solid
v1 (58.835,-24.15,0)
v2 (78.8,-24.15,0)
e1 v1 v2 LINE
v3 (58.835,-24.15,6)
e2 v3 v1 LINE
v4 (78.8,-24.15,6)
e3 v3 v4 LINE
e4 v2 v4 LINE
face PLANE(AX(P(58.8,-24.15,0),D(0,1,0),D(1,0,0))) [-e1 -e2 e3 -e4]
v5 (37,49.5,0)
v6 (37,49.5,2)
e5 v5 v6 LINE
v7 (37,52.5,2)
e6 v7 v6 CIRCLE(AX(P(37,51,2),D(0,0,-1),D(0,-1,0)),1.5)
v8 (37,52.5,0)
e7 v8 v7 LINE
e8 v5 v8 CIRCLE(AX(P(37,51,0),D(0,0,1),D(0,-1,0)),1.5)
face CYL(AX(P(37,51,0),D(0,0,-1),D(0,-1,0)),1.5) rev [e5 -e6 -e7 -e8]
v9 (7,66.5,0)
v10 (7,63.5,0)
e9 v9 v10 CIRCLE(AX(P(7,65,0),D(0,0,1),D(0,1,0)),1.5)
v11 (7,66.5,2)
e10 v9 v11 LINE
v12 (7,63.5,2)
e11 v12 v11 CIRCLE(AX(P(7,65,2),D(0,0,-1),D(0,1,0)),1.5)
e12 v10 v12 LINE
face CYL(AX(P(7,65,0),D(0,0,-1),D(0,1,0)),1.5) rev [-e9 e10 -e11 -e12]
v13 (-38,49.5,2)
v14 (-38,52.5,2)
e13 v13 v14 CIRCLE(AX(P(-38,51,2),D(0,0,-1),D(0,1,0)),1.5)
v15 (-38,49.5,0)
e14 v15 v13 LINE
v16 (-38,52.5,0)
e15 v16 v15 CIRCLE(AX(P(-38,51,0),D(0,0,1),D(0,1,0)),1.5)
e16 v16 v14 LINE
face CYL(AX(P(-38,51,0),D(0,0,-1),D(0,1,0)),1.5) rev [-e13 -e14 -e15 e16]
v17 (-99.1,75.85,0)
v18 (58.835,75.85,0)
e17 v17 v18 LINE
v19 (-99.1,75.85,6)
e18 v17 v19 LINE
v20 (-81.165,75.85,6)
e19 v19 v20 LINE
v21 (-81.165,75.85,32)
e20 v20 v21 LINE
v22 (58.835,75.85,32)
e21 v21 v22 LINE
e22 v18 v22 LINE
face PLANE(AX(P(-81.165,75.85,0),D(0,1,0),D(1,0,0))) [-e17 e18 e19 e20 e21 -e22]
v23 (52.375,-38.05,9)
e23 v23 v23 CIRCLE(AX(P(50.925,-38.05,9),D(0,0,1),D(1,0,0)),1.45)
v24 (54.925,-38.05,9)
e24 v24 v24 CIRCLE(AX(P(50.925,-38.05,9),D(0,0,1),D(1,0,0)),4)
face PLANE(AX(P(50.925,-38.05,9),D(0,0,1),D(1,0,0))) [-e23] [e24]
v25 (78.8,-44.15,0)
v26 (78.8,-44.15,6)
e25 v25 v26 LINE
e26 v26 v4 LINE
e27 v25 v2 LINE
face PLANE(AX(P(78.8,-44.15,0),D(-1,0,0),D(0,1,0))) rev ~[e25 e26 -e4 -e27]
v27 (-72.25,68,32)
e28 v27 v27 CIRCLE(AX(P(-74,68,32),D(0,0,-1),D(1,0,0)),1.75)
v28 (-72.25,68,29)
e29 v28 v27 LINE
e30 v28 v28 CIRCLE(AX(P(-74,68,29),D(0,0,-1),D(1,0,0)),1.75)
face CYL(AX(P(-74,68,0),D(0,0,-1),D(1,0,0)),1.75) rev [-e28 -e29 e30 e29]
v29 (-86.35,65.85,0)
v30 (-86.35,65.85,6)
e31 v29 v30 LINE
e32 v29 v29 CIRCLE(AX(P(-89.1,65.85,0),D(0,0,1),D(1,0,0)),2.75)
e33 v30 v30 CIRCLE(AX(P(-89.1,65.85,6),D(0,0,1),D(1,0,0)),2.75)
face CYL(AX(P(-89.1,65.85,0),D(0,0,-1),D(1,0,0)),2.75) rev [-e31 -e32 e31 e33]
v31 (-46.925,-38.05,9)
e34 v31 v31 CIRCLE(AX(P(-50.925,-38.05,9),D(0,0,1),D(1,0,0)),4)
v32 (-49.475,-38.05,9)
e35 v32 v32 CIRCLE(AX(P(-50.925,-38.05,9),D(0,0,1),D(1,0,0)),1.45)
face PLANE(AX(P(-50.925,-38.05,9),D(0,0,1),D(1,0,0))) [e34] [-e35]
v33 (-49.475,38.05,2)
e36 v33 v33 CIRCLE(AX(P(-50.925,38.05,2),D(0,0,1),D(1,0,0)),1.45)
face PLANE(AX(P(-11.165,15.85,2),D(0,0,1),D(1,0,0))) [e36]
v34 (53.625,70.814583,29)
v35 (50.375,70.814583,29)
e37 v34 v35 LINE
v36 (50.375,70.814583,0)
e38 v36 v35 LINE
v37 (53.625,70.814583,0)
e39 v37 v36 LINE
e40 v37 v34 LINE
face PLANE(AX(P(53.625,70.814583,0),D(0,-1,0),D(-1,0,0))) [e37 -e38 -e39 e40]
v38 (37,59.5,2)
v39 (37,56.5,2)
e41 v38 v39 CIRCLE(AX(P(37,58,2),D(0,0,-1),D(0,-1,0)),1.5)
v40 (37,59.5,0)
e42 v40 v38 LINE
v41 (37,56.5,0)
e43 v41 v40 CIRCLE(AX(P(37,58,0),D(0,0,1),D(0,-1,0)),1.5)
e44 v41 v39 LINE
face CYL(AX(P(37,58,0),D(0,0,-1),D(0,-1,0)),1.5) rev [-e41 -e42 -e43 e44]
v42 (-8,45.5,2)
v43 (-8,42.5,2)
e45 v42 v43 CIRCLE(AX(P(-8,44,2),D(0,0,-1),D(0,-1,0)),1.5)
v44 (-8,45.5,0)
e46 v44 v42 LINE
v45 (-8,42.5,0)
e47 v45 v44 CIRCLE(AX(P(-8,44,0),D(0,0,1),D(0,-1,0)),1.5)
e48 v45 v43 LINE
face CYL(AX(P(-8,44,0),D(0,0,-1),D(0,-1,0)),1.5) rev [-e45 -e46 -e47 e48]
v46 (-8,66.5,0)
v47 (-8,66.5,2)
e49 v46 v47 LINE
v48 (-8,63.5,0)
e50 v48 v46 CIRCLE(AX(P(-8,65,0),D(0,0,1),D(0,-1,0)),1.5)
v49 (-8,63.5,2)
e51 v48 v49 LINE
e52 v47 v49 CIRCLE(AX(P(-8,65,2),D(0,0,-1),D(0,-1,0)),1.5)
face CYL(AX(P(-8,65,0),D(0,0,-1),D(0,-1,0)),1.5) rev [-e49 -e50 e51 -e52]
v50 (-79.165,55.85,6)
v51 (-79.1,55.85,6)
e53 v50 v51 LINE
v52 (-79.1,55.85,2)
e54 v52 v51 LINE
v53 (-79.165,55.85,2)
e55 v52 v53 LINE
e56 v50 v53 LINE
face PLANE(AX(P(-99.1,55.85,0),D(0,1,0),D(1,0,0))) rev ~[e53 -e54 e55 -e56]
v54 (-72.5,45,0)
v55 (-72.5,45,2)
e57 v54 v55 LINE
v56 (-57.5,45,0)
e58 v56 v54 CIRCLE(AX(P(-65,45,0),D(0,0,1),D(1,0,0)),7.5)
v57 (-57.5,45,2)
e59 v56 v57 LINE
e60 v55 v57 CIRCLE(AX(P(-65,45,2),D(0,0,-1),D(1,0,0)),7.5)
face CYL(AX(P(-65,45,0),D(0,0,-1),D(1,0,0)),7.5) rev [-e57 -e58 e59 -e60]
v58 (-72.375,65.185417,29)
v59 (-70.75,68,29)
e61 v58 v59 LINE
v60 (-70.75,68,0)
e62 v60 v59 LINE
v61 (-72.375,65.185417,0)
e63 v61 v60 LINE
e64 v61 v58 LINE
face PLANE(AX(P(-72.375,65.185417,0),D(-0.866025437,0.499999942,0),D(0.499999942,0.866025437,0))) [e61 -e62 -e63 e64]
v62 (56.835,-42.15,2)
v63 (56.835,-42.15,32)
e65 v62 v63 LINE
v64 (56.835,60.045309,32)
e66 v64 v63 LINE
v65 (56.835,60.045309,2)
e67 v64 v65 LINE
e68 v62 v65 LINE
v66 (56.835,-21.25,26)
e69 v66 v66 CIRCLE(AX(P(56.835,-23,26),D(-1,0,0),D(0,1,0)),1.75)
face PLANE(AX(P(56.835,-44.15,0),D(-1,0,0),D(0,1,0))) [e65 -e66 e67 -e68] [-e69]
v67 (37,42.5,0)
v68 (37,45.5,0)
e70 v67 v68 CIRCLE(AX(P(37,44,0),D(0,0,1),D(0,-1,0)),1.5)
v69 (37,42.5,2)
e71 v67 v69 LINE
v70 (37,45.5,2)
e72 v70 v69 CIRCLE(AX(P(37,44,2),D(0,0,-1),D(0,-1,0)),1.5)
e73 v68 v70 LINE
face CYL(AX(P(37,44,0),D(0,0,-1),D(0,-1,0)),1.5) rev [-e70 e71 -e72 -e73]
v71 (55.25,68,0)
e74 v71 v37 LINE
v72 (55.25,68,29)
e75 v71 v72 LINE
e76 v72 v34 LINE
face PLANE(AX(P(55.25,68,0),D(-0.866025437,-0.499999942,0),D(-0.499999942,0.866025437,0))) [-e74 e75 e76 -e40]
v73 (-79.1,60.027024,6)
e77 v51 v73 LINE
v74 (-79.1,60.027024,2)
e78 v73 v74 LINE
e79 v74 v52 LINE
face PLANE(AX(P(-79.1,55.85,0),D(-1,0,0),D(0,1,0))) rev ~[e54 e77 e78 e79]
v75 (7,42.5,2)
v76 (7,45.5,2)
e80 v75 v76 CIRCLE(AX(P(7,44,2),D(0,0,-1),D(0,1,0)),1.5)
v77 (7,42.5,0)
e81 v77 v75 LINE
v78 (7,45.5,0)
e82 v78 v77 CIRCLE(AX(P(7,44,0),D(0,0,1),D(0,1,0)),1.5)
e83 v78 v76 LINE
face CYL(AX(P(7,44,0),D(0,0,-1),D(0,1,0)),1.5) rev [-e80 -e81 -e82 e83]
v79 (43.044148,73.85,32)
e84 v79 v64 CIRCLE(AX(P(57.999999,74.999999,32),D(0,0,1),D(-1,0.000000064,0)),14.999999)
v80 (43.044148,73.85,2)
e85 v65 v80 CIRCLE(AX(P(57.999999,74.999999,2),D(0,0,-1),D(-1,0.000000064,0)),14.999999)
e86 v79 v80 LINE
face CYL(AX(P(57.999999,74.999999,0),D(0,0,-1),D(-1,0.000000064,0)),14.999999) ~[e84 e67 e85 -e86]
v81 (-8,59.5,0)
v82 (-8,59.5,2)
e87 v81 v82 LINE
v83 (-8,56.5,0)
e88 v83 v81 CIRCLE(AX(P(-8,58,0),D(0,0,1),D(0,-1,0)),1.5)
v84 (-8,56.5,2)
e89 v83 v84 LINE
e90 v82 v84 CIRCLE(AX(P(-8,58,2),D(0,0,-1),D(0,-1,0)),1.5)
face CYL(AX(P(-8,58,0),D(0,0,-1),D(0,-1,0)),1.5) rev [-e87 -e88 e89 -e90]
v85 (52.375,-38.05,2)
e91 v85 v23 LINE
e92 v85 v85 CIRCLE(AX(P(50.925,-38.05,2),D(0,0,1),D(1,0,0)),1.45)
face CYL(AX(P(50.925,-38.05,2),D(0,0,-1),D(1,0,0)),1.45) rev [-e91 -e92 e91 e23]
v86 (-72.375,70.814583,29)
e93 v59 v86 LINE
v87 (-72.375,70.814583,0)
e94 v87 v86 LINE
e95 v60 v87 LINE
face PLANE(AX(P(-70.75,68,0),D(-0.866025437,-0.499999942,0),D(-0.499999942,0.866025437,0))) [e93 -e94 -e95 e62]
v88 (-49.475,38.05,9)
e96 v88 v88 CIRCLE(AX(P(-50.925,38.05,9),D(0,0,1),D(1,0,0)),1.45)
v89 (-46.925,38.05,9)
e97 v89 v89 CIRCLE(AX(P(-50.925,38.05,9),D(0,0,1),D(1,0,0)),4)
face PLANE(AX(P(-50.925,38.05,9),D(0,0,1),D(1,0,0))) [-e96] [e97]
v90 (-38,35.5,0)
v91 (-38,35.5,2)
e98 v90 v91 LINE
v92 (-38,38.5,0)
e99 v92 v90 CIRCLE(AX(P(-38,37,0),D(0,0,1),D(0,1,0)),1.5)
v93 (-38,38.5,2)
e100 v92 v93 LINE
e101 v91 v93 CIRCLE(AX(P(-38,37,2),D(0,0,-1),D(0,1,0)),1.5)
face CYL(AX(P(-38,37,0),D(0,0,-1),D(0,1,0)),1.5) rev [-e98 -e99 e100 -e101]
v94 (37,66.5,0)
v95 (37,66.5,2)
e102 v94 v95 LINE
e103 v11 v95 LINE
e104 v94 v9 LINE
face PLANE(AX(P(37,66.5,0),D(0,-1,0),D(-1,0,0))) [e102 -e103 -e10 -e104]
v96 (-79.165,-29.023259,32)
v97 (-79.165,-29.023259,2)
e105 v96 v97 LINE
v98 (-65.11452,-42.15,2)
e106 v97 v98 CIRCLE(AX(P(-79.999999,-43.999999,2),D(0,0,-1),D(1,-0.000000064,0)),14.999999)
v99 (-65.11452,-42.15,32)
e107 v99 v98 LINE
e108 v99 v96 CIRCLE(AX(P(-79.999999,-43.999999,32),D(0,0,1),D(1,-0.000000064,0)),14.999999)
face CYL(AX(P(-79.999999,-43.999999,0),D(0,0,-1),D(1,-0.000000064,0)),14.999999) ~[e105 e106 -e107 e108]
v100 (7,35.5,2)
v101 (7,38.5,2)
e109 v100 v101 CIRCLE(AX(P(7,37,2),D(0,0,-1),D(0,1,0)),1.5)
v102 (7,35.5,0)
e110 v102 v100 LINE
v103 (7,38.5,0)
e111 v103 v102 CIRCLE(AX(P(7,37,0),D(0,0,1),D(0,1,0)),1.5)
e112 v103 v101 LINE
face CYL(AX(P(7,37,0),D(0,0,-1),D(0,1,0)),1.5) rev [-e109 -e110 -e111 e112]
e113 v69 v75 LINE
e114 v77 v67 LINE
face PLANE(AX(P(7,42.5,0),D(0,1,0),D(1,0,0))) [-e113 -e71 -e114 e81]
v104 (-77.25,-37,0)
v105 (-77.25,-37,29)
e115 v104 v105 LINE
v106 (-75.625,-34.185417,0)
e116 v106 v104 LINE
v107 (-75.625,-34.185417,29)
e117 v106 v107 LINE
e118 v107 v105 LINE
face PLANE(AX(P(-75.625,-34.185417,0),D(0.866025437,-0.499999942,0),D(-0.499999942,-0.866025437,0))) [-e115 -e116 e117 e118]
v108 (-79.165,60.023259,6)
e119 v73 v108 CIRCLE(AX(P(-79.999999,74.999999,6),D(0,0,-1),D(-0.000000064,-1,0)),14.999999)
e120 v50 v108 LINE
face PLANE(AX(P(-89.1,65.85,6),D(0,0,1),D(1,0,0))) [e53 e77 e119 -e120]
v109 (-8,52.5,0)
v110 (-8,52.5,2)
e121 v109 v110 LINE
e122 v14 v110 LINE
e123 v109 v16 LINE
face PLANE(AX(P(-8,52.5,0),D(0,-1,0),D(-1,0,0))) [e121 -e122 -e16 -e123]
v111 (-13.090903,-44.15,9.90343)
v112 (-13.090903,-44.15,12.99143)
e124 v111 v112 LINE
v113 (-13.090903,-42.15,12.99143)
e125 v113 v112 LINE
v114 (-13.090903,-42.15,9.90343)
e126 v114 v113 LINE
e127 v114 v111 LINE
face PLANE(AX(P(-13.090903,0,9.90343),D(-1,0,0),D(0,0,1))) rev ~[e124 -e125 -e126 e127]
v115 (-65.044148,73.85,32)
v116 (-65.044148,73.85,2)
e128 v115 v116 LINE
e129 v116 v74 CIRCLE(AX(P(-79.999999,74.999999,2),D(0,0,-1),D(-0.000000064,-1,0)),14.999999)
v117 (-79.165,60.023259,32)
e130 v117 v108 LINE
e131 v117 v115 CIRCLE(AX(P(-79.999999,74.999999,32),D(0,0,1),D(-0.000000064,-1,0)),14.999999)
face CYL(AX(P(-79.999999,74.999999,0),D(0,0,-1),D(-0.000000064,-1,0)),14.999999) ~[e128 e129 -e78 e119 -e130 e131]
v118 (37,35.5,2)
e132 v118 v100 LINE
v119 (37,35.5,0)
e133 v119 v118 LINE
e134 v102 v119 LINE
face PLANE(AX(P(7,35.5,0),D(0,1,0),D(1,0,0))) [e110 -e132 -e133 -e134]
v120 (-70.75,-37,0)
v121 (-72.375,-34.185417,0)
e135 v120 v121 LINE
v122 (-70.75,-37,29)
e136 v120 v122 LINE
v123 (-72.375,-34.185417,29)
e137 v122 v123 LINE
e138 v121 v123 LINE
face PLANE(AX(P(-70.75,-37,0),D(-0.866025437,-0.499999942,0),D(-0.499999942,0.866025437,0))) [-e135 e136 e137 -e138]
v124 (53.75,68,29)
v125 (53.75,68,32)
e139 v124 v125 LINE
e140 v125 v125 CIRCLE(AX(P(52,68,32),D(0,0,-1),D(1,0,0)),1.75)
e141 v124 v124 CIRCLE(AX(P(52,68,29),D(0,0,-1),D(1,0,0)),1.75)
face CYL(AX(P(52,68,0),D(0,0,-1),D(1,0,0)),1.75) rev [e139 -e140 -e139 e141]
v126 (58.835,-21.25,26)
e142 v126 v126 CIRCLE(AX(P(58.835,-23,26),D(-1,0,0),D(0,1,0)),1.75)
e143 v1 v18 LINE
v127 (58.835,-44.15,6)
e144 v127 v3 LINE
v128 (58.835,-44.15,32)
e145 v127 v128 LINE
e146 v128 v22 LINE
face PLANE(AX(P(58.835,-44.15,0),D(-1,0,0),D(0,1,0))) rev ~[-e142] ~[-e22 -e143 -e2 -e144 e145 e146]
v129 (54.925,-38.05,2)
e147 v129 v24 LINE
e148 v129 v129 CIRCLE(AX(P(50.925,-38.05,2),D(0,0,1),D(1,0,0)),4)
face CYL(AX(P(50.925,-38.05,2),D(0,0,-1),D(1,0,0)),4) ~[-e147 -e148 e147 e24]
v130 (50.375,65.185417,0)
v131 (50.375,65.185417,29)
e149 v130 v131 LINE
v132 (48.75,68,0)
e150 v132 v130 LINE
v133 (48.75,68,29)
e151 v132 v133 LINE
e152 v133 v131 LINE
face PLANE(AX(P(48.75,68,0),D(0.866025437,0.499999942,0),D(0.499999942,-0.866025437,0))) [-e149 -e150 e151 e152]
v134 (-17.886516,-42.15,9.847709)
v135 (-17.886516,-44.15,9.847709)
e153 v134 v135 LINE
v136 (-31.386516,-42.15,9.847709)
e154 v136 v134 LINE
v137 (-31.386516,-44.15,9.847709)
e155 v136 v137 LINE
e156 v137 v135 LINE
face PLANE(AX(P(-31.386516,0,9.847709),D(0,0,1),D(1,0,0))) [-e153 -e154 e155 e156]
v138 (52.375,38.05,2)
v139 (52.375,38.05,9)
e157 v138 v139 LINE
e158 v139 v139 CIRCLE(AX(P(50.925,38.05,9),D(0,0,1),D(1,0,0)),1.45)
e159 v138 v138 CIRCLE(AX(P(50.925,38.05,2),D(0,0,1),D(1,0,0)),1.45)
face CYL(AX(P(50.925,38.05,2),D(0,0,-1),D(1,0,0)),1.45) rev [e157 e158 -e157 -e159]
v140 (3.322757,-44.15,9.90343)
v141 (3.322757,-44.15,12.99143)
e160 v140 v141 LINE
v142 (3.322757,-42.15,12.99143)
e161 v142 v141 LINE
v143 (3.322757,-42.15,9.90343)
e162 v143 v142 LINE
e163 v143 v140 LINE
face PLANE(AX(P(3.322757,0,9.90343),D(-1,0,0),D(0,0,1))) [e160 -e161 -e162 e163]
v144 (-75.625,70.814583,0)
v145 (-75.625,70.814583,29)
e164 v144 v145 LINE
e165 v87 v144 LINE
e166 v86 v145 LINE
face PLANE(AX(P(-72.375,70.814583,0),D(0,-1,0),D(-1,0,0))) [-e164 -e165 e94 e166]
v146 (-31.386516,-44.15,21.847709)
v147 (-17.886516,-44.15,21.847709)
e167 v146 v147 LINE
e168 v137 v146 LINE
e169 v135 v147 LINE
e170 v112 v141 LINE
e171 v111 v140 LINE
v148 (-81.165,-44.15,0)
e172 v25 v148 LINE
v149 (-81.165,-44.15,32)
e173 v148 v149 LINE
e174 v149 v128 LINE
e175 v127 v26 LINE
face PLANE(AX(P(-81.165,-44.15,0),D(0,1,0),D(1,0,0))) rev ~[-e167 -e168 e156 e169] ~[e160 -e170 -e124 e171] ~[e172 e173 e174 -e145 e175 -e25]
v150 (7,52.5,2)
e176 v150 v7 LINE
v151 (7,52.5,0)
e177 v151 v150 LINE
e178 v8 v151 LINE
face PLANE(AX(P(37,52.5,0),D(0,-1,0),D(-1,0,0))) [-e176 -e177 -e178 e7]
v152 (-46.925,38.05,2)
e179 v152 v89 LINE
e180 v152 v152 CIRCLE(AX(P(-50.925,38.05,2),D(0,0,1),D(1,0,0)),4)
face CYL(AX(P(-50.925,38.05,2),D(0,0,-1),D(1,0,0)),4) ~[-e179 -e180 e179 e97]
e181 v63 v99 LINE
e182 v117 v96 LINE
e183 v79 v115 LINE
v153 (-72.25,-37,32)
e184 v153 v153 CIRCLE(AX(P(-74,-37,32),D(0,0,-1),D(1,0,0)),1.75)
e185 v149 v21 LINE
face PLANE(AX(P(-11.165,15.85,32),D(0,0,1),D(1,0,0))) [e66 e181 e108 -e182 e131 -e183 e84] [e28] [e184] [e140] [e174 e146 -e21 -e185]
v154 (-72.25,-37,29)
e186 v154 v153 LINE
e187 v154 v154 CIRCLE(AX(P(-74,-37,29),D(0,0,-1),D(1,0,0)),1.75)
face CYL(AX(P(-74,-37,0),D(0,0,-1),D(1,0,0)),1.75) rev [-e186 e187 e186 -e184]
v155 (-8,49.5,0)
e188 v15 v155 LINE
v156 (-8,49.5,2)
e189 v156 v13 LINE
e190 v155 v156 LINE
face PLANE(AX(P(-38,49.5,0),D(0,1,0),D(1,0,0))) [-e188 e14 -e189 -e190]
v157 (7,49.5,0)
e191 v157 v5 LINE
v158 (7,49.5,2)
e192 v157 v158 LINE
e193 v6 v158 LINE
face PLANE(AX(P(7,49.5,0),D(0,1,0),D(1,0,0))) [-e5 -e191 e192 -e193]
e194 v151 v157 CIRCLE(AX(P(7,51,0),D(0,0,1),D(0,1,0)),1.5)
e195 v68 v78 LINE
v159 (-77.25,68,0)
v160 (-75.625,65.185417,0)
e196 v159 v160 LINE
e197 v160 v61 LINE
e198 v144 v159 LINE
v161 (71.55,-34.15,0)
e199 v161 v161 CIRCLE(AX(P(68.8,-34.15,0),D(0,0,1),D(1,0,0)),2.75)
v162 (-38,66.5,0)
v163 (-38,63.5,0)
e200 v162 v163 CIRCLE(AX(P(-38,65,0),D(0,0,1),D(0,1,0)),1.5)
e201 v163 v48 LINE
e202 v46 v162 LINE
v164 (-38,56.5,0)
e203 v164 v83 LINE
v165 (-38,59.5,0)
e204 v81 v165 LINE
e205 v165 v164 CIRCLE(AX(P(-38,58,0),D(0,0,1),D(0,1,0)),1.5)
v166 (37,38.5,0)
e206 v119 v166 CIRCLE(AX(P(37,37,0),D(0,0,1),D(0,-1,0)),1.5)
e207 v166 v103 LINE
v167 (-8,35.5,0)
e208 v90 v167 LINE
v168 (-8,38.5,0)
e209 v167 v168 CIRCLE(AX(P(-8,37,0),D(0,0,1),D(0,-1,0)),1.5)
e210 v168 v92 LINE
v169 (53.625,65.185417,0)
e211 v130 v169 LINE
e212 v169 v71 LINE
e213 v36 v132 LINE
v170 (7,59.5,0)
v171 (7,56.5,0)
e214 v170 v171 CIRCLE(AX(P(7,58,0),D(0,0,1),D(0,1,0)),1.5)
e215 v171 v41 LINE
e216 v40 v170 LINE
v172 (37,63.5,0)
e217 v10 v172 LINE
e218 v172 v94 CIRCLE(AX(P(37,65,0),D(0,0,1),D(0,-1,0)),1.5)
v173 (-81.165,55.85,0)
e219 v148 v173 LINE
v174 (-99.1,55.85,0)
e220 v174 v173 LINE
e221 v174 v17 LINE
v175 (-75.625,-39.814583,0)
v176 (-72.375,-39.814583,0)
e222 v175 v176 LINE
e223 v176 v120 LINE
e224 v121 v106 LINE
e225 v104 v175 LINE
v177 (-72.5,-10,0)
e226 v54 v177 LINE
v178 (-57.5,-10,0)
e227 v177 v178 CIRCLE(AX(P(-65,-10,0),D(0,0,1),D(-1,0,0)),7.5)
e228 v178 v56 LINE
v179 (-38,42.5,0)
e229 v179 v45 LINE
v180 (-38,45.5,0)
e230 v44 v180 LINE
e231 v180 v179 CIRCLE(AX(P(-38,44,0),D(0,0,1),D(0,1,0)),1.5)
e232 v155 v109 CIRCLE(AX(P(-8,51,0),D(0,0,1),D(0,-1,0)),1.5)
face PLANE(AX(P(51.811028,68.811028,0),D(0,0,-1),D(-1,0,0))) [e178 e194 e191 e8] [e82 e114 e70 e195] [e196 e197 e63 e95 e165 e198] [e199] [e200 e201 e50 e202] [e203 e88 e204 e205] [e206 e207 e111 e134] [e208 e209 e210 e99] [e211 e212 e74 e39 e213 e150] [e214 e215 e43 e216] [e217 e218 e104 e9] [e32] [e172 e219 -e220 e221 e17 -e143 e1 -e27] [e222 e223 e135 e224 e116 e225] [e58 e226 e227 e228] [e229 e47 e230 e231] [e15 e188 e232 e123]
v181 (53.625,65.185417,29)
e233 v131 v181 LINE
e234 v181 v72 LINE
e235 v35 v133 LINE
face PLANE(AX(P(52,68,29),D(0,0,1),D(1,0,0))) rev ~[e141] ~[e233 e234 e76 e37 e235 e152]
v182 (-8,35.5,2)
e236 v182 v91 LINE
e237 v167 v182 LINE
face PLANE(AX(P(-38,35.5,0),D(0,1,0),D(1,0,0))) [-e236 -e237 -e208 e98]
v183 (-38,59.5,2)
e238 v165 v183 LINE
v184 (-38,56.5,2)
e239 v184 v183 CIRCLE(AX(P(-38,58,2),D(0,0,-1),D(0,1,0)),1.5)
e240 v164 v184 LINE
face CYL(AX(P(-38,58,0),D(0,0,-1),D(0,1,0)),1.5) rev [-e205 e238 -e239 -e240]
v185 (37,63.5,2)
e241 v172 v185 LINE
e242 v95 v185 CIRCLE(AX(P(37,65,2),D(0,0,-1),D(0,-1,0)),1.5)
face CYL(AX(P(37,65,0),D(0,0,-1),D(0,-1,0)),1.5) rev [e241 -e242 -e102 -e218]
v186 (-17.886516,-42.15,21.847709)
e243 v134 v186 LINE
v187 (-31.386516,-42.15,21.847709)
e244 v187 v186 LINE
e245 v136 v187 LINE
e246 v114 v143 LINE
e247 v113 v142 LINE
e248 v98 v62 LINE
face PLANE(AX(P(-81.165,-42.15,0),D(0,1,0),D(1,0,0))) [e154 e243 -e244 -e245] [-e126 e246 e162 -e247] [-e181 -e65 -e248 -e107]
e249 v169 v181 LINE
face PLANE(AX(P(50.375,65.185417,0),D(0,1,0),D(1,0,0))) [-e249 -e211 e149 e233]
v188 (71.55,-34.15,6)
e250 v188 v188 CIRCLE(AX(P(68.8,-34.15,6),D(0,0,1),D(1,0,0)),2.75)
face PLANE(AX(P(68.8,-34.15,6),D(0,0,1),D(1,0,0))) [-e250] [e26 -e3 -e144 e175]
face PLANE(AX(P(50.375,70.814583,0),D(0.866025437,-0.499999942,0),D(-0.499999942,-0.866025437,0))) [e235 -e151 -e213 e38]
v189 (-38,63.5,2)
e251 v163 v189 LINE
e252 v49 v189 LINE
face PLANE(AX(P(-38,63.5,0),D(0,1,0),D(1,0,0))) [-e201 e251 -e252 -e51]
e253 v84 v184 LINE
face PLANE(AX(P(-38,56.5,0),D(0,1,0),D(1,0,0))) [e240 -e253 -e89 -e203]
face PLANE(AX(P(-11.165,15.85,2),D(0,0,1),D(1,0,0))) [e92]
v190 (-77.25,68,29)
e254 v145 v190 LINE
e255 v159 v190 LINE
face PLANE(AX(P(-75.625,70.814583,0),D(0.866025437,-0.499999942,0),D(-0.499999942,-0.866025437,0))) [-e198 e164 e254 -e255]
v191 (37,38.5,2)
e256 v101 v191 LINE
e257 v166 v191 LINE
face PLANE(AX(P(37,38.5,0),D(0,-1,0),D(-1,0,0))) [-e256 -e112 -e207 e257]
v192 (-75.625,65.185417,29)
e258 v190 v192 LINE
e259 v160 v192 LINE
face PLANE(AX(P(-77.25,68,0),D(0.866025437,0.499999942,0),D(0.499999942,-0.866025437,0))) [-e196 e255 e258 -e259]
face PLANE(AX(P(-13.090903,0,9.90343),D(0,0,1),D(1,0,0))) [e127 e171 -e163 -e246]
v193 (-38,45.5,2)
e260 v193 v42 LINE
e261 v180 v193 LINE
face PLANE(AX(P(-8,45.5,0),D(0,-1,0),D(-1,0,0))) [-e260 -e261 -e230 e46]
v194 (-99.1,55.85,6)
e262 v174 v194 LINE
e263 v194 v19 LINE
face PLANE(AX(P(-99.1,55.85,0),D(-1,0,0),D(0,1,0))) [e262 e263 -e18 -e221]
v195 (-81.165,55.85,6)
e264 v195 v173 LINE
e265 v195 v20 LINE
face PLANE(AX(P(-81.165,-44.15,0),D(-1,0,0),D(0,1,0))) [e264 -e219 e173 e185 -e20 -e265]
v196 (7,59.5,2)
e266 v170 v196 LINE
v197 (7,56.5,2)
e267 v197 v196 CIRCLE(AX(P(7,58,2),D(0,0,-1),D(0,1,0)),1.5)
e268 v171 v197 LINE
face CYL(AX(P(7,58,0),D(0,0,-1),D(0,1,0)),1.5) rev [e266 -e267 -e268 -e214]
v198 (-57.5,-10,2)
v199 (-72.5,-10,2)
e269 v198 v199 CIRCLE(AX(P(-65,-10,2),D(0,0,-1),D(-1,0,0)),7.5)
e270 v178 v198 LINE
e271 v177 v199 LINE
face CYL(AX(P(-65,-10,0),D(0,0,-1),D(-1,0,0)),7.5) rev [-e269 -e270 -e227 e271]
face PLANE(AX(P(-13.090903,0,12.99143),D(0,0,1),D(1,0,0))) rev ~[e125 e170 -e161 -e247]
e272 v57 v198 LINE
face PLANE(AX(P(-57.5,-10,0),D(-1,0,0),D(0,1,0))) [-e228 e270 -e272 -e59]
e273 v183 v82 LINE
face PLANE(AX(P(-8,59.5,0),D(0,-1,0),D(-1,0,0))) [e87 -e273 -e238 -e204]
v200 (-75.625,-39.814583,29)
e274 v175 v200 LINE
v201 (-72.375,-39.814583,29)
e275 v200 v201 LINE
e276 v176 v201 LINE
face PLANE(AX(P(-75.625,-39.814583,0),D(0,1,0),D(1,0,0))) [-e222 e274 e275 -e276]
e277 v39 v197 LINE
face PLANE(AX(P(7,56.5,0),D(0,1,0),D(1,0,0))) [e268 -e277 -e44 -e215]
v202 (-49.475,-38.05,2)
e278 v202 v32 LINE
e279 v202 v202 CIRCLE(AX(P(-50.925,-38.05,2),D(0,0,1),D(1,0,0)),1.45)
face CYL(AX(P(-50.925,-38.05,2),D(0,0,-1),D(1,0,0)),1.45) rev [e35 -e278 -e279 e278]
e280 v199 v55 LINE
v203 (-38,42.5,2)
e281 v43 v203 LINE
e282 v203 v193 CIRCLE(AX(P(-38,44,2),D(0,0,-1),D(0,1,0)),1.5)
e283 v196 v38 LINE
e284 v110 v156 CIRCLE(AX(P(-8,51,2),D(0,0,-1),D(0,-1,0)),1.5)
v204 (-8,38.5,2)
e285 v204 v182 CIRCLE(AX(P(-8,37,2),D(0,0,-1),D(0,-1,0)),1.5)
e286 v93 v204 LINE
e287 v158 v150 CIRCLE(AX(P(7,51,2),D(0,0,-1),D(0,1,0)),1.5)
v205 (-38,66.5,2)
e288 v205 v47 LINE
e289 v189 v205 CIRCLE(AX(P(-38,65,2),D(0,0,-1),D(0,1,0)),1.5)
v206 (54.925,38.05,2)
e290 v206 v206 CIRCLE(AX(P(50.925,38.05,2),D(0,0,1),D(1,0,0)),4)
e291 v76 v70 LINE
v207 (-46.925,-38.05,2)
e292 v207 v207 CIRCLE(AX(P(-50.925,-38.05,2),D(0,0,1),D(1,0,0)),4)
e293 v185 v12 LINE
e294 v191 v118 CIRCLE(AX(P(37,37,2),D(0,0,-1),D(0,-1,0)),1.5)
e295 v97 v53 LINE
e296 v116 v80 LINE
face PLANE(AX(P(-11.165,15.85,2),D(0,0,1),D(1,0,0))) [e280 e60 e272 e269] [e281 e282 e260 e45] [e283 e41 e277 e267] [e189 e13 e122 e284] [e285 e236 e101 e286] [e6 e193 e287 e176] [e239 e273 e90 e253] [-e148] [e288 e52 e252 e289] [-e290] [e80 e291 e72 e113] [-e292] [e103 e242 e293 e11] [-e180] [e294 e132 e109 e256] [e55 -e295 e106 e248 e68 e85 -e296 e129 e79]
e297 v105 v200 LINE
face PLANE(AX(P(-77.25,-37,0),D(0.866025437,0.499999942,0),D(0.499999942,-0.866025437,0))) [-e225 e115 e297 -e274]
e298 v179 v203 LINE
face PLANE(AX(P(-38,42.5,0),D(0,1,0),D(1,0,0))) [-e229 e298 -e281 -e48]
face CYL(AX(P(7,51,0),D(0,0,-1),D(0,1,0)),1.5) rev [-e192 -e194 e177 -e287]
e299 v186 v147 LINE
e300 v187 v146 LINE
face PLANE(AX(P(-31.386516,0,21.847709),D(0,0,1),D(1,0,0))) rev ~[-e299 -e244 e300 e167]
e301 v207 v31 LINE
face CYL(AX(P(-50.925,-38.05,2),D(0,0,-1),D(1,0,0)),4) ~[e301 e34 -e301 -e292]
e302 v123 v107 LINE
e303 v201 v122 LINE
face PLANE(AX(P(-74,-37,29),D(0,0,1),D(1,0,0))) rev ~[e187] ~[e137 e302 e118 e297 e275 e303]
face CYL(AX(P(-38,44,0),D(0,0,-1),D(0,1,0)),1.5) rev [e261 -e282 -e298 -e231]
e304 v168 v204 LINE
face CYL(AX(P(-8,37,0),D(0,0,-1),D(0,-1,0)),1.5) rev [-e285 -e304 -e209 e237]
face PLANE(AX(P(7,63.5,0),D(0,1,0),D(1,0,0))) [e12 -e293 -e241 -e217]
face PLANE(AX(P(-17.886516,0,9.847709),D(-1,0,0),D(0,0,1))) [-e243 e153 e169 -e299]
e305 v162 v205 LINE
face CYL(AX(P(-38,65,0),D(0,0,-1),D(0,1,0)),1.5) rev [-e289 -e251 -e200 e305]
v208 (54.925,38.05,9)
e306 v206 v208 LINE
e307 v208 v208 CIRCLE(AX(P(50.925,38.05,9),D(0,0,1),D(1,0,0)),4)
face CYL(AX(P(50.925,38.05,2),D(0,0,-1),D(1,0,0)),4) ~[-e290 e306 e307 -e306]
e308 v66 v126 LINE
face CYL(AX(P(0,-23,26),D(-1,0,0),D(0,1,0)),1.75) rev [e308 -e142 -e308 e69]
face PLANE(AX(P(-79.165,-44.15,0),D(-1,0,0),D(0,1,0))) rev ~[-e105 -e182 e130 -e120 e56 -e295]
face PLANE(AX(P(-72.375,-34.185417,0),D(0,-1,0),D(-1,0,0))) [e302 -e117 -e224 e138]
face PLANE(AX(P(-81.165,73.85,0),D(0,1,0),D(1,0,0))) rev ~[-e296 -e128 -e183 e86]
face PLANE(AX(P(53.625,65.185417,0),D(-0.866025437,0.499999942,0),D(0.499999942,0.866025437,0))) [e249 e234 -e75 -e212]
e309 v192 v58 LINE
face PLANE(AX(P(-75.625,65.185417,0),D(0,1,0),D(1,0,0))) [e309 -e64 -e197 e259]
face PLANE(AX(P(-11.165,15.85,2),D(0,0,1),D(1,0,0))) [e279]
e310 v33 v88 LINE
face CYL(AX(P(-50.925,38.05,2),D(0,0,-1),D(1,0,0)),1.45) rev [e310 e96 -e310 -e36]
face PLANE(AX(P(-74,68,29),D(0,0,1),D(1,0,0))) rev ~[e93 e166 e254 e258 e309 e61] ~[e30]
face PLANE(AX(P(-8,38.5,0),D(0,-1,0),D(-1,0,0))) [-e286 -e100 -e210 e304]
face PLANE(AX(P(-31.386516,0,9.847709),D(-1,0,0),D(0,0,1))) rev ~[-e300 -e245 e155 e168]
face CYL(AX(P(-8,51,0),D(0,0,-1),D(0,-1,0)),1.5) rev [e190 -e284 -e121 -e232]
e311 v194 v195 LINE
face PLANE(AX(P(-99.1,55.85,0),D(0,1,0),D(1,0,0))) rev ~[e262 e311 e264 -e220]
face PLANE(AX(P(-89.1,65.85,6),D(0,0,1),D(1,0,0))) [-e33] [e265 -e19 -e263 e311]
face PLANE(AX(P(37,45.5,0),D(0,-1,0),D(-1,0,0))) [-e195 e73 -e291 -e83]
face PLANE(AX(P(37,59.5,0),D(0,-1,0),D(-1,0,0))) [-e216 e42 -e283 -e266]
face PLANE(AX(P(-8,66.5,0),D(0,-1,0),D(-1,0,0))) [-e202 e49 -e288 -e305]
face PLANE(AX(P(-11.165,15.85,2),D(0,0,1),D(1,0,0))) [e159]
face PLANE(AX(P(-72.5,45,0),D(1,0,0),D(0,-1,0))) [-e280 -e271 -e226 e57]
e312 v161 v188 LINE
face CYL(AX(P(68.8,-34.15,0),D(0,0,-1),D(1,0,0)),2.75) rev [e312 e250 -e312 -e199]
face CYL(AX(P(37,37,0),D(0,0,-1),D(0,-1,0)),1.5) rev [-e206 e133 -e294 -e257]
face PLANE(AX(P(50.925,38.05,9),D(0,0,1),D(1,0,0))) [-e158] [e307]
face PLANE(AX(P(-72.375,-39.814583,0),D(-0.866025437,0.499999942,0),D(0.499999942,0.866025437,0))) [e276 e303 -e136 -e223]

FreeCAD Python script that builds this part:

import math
import FreeCAD as App
import Part
import Sketcher
from FreeCAD import Vector
Q = App.Units.Quantity


def faces_at(feature, points):
    """Names of the faces that lie closest to the given points."""
    faces = feature.Shape.Faces
    near = lambda p: min(range(len(faces)), key=lambda i: faces[i].distToShape(Part.Vertex(*p))[0])
    return sorted({f"Face{near(p) + 1}" for p in points})


def add_polygon(sketch, points):
    """Adds a closed chain of lines whose ends are joined by coincident constraints."""
    first, n = sketch.GeometryCount, len(points)
    for a, b in zip(points, points[1:] + points[:1]):
        sketch.addGeometry(Part.LineSegment(App.Vector(*a, 0), App.Vector(*b, 0)), False)
    for i in range(n):
        sketch.addConstraint(Sketcher.Constraint("Coincident", first + i, 2, first + (i + 1) % n, 1))

doc = App.newDocument("Part")
params = doc.addObject("Spreadsheet::Sheet", "Params")
for row, (alias, value) in enumerate([
    ("sketch1_width", "140 mm"),
    ("sketch1_height", "120 mm"),
    ("pad1_length", "32 mm"),
    ("thickness_wall", "2 mm"),
    ("sketch2_diameter", "8 mm"),
    ("sketch2_diameter2", "2.9 mm"),
    ("pad2_length", "7 mm"),
    ("sketch3_height", "12 mm"),
    ("sketch3_width", "13.5 mm"),
    ("sketch4_radius", "14.999999 mm"),
    ("pad3_length", "32 mm"),
    ("sketch5_diameter", "3.5 mm"),
    ("sketch6_diameter", "3.5 mm"),
    ("sketch7_diameter", "5.5 mm"),
    ("sketch7_width", "20 mm"),
    ("pad4_length", "6 mm"),
    ("sketch8_width", "3.25 mm"),
    ("pocket4_length", "29 mm"),
    ("sketch9_radius", "7.5 mm"),
    ("sketch9_radius2", "1.5 mm"),
    ("sketch9_width", "30 mm"),
    ("sketch9_height", "55 mm"),
], start=1):
    params.set(f"A{row}", alias)
    params.set(f"B{row}", "=" + value)
    params.setAlias(f"B{row}", alias)

body = doc.addObject("PartDesign::Body", "Body")

sketch1 = body.newObject("Sketcher::SketchObject", "Sketch")
sketch1.AttachmentSupport = (doc.getObject("XY_Plane"), [""])
sketch1.MapMode = "FlatFace"
add_polygon(sketch1, [(-81, 76), (-81, -44), (59, -44), (59, 76)])
sketch1.addConstraint([
    Sketcher.Constraint("Vertical", 0),
    Sketcher.Constraint("Horizontal", 1),
    Sketcher.Constraint("Vertical", 2),
    Sketcher.Constraint("Horizontal", 3),
    Sketcher.Constraint("DistanceX", 1, 1, 1, 2, 140.0),
    Sketcher.Constraint("DistanceY", 0, 2, 0, 1, 120.0),
    Sketcher.Constraint("DistanceY", 0, 2, -1, 1, 44.15),
    Sketcher.Constraint("DistanceX", 0, 2, -1, 1, 81.165),
])
sketch1.setExpression("Constraints[8]", "Params.sketch1_width")
sketch1.setExpression("Constraints[9]", "Params.sketch1_height")
pad1 = body.newObject("PartDesign::Pad", "Pad")
pad1.Profile = sketch1
pad1.setExpression("Length", "Params.pad1_length")
doc.recompute()

thickness = body.newObject("PartDesign::Thickness", "Thickness")
thickness.Base = (pad1, faces_at(pad1, [(-11.165, 15.85, 32)]))
thickness.setExpression("Value", "Params.thickness_wall")
thickness.Reversed = True
thickness.Join = "Intersection"

sketch2 = body.newObject("Sketcher::SketchObject", "Sketch001")
sketch2.AttachmentSupport = (doc.getObject("XY_Plane"), [""])
sketch2.MapMode = "FlatFace"
sketch2.AttachmentOffset = App.Placement(Vector(0, 0, 2), App.Rotation())
sketch2.addGeometry([
    Part.Circle(Vector(-50.9, 38, 0), Vector(0, 0, 1), 4),
    Part.Circle(Vector(-50.9, 38, 0), Vector(0, 0, 1), 1.4),
    Part.Circle(Vector(50.9, 38, 0), Vector(0, 0, 1), 4),
    Part.Circle(Vector(50.9, 38, 0), Vector(0, 0, 1), 1.4),
    Part.Circle(Vector(-50.9, -38, 0), Vector(0, 0, 1), 4),
    Part.Circle(Vector(-50.9, -38, 0), Vector(0, 0, 1), 1.4),
    Part.Circle(Vector(50.9, -38, 0), Vector(0, 0, 1), 4),
    Part.Circle(Vector(50.9, -38, 0), Vector(0, 0, 1), 1.4),
], False)
sketch2.addConstraint([
    Sketcher.Constraint("Coincident", 1, 3, 0, 3),
    Sketcher.Constraint("Coincident", 3, 3, 2, 3),
    Sketcher.Constraint("Coincident", 5, 3, 4, 3),
    Sketcher.Constraint("Coincident", 7, 3, 6, 3),
    Sketcher.Constraint("Equal", 0, 2),
    Sketcher.Constraint("Equal", 1, 3),
    Sketcher.Constraint("Equal", 2, 4),
    Sketcher.Constraint("Equal", 3, 5),
    Sketcher.Constraint("Equal", 4, 6),
    Sketcher.Constraint("Equal", 5, 7),
    Sketcher.Constraint("Symmetric", 2, 3, 4, 3, -1, 1),
    Sketcher.Constraint("Symmetric", 0, 3, 6, 3, -1, 1),
    Sketcher.Constraint("Symmetric", 0, 3, 2, 3, -2),
    Sketcher.Constraint("Diameter", 0, 8.0),
    Sketcher.Constraint("Diameter", 1, 2.9),
    Sketcher.Constraint("DistanceY", 4, 3, 0, 3, 76.1),
    Sketcher.Constraint("DistanceX", 0, 3, 2, 3, 101.85),
])
sketch2.setExpression("Constraints[13]", "Params.sketch2_diameter")
sketch2.setExpression("Constraints[14]", "Params.sketch2_diameter2")
pad2 = body.newObject("PartDesign::Pad", "Pad001")
pad2.Profile = sketch2
pad2.setExpression("Length", "Params.pad2_length")

sketch3 = body.newObject("Sketcher::SketchObject", "Sketch002")
sketch3.AttachmentSupport = (doc.getObject("XZ_Plane"), [""])
sketch3.MapMode = "FlatFace"
add_polygon(sketch3, [(-13.1, 13), (-13.1, 9.9), (3.3, 9.9), (3.3, 13)])
add_polygon(sketch3, [(-31.4, 21.8), (-31.4, 9.8), (-17.9, 9.8), (-17.9, 21.8)])
sketch3.addConstraint([
    Sketcher.Constraint("Vertical", 0),
    Sketcher.Constraint("Horizontal", 1),
    Sketcher.Constraint("Vertical", 2),
    Sketcher.Constraint("Horizontal", 3),
    Sketcher.Constraint("Vertical", 4),
    Sketcher.Constraint("Horizontal", 5),
    Sketcher.Constraint("Vertical", 6),
    Sketcher.Constraint("Horizontal", 7),
    Sketcher.Constraint("DistanceY", 4, 2, 4, 1, 12.0),
    Sketcher.Constraint("DistanceX", 5, 1, 5, 2, 13.5),
    Sketcher.Constraint("DistanceY", 0, 2, 0, 1, 3.088),
    Sketcher.Constraint("DistanceX", 1, 1, 1, 2, 16.413659),
    Sketcher.Constraint("DistanceY", -1, 1, 0, 2, 9.90343),
    Sketcher.Constraint("DistanceY", -1, 1, 4, 2, 9.847709),
    Sketcher.Constraint("DistanceX", 0, 2, -1, 1, 13.090903),
    Sketcher.Constraint("DistanceX", 4, 2, -1, 1, 31.386516),
])
sketch3.setExpression("Constraints[16]", "Params.sketch3_height")
sketch3.setExpression("Constraints[17]", "Params.sketch3_width")
pocket1 = body.newObject("PartDesign::Pocket", "Pocket")
pocket1.Profile = sketch3
pocket1.Type = "ThroughAll"
pocket1.Reversed = True

sketch4 = body.newObject("Sketcher::SketchObject", "Sketch003")
sketch4.AttachmentSupport = (doc.getObject("XY_Plane"), [""])
sketch4.MapMode = "FlatFace"
sketch4.addGeometry([
    Part.LineSegment(Vector(58, 75, 0), Vector(43, 75, 0)),
    Part.ArcOfCircle(Part.Circle(Vector(58, 75, 0), Vector(0, 0, 1), 15), math.radians(180), math.radians(270)),
    Part.LineSegment(Vector(58, 60, 0), Vector(58, 75, 0)),
    Part.LineSegment(Vector(-65, 75, 0), Vector(-80, 75, 0)),
    Part.LineSegment(Vector(-80, 75, 0), Vector(-80, 60, 0)),
    Part.ArcOfCircle(Part.Circle(Vector(-80, 75, 0), Vector(0, 0, 1), 15), math.radians(-90), math.radians(0)),
    Part.LineSegment(Vector(-80, -29, 0), Vector(-80, -44, 0)),
    Part.LineSegment(Vector(-80, -44, 0), Vector(-65, -44, 0)),
    Part.ArcOfCircle(Part.Circle(Vector(-80, -44, 0), Vector(0, 0, 1), 15), math.radians(0), math.radians(90)),
], False)
sketch4.addConstraint([
    Sketcher.Constraint("Coincident", 0, 2, 1, 1),
    Sketcher.Constraint("Coincident", 1, 2, 2, 1),
    Sketcher.Constraint("Coincident", 2, 2, 0, 1),
    Sketcher.Constraint("Coincident", 3, 2, 4, 1),
    Sketcher.Constraint("Coincident", 4, 2, 5, 1),
    Sketcher.Constraint("Coincident", 5, 2, 3, 1),
    Sketcher.Constraint("Coincident", 6, 2, 7, 1),
    Sketcher.Constraint("Coincident", 7, 2, 8, 1),
    Sketcher.Constraint("Coincident", 8, 2, 6, 1),
    Sketcher.Constraint("Horizontal", 0),
    Sketcher.Constraint("Vertical", 2),
    Sketcher.Constraint("Horizontal", 3),
    Sketcher.Constraint("Vertical", 4),
    Sketcher.Constraint("Vertical", 6),
    Sketcher.Constraint("Horizontal", 7),
    Sketcher.Constraint("Coincident", 2, 2, 1, 3),
    Sketcher.Constraint("Coincident", 3, 2, 5, 3),
    Sketcher.Constraint("Coincident", 6, 2, 8, 3),
    Sketcher.Constraint("Equal", 1, 5),
    Sketcher.Constraint("Equal", 5, 8),
    Sketcher.Constraint("Horizontal", 1, 3, 5, 3),
    Sketcher.Constraint("Vertical", 5, 3, 8, 3),
    Sketcher.Constraint("Radius", 1, 14.999999),
    Sketcher.Constraint("DistanceX", -1, 1, 1, 3, 57.999999),
    Sketcher.Constraint("DistanceY", -1, 1, 1, 3, 74.999999),
    Sketcher.Constraint("DistanceX", 5, 3, -1, 1, 79.999999),
    Sketcher.Constraint("DistanceY", 8, 3, -1, 1, 43.999999),
])
sketch4.setExpression("Constraints[22]", "Params.sketch4_radius")
pad3 = body.newObject("PartDesign::Pad", "Pad002")
pad3.Profile = sketch4
pad3.setExpression("Length", "Params.pad3_length")

sketch5 = body.newObject("Sketcher::SketchObject", "Sketch004")
sketch5.AttachmentSupport = (doc.getObject("YZ_Plane"), [""])
sketch5.MapMode = "FlatFace"
sketch5.addGeometry(Part.Circle(Vector(-23, 26, 0), Vector(0, 0, 1), 1.8), False)
sketch5.addConstraint([
    Sketcher.Constraint("Diameter", 0, 3.5),
    Sketcher.Constraint("DistanceX", 0, 3, -1, 1, 23.0),
    Sketcher.Constraint("DistanceY", -1, 1, 0, 3, 26.0),
])
sketch5.setExpression("Constraints[0]", "Params.sketch5_diameter")
pocket2 = body.newObject("PartDesign::Pocket", "Pocket001")
pocket2.Profile = sketch5
pocket2.Type = "ThroughAll"
pocket2.Reversed = True

sketch6 = body.newObject("Sketcher::SketchObject", "Sketch005")
sketch6.AttachmentSupport = (doc.getObject("XY_Plane"), [""])
sketch6.MapMode = "FlatFace"
sketch6.addGeometry([
    Part.Circle(Vector(-74, 68, 0), Vector(0, 0, 1), 1.8),
    Part.Circle(Vector(52, 68, 0), Vector(0, 0, 1), 1.8),
    Part.Circle(Vector(-74, -37, 0), Vector(0, 0, 1), 1.8),
], False)
sketch6.addConstraint([
    Sketcher.Constraint("Equal", 0, 1),
    Sketcher.Constraint("Equal", 1, 2),
    Sketcher.Constraint("Horizontal", 0, 3, 1, 3),
    Sketcher.Constraint("Vertical", 0, 3, 2, 3),
    Sketcher.Constraint("Diameter", 0, 3.5),
    Sketcher.Constraint("DistanceX", 0, 3, -1, 1, 74.0),
    Sketcher.Constraint("DistanceY", -1, 1, 0, 3, 68.0),
    Sketcher.Constraint("DistanceX", -1, 1, 1, 3, 52.0),
    Sketcher.Constraint("DistanceY", 2, 3, -1, 1, 37.0),
])
sketch6.setExpression("Constraints[4]", "Params.sketch6_diameter")
pocket3 = body.newObject("PartDesign::Pocket", "Pocket002")
pocket3.Profile = sketch6
pocket3.Type = "ThroughAll"
pocket3.Reversed = True

sketch7 = body.newObject("Sketcher::SketchObject", "Sketch006")
sketch7.AttachmentSupport = (doc.getObject("XY_Plane"), [""])
sketch7.MapMode = "FlatFace"
add_polygon(sketch7, [(58.8, -24.1), (58.8, -44.1), (78.8, -44.1), (78.8, -24.1)])
sketch7.addGeometry(Part.Circle(Vector(68.8, -34.1, 0), Vector(0, 0, 1), 2.8), False)
add_polygon(sketch7, [(-99.1, 75.8), (-99.1, 55.9), (-79.1, 55.9), (-79.1, 75.8)])
sketch7.addGeometry(Part.Circle(Vector(-89.1, 65.8, 0), Vector(0, 0, 1), 2.8), False)
sketch7.addConstraint([
    Sketcher.Constraint("Vertical", 0),
    Sketcher.Constraint("Horizontal", 1),
    Sketcher.Constraint("Vertical", 2),
    Sketcher.Constraint("Horizontal", 3),
    Sketcher.Constraint("Vertical", 5),
    Sketcher.Constraint("Horizontal", 6),
    Sketcher.Constraint("Vertical", 7),
    Sketcher.Constraint("Horizontal", 8),
    Sketcher.Constraint("Equal", 4, 9),
    Sketcher.Constraint("Equal", 3, 6),
    Sketcher.Constraint("Equal", 8, 0),
    Sketcher.Constraint("Equal", 2, 5),
    Sketcher.Constraint("Diameter", 4, 5.5),
    Sketcher.Constraint("DistanceX", 1, 1, 1, 2, 20.0),
    Sketcher.Constraint("DistanceY", 4, 3, 9, 3, 100.0),
    Sketcher.Constraint("DistanceX", 0, 2, 4, 3, 10.0),
    Sketcher.Constraint("DistanceY", 0, 2, 4, 3, 10.0),
    Sketcher.Constraint("DistanceX", 5, 2, 9, 3, 10.0),
    Sketcher.Constraint("DistanceY", 5, 2, 9, 3, 10.0),
    Sketcher.Constraint("DistanceX", -1, 1, 4, 3, 68.8),
    Sketcher.Constraint("DistanceX", 9, 3, -1, 1, 89.1),
    Sketcher.Constraint("DistanceY", 4, 3, -1, 1, 34.15),
])
sketch7.setExpression("Constraints[20]", "Params.sketch7_diameter")
sketch7.setExpression("Constraints[21]", "Params.sketch7_width")
pad4 = body.newObject("PartDesign::Pad", "Pad003")
pad4.Profile = sketch7
pad4.setExpression("Length", "Params.pad4_length")

sketch8 = body.newObject("Sketcher::SketchObject", "Sketch007")
sketch8.AttachmentSupport = (doc.getObject("XY_Plane"), [""])
sketch8.MapMode = "FlatFace"
add_polygon(sketch8, [(-70.8, 68), (-72.4, 70.8), (-75.6, 70.8), (-77.2, 68), (-75.6, 65.2), (-72.4, 65.2)])
add_polygon(sketch8, [(55.2, 68), (53.6, 70.8), (50.4, 70.8), (48.8, 68), (50.4, 65.2), (53.6, 65.2)])
add_polygon(sketch8, [(-70.8, -37), (-72.4, -34.2), (-75.6, -34.2), (-77.2, -37), (-75.6, -39.8), (-72.4, -39.8)])
sketch8.addConstraint([
    Sketcher.Constraint("Horizontal", 1),
    Sketcher.Constraint("Horizontal", 4),
    Sketcher.Constraint("Horizontal", 7),
    Sketcher.Constraint("Horizontal", 10),
    Sketcher.Constraint("Horizontal", 13),
    Sketcher.Constraint("Horizontal", 16),
    Sketcher.Constraint("Parallel", 0, 3),
    Sketcher.Constraint("Parallel", 2, 5),
    Sketcher.Constraint("Parallel", 3, 6),
    Sketcher.Constraint("Parallel", 5, 8),
    Sketcher.Constraint("Parallel", 6, 9),
    Sketcher.Constraint("Parallel", 8, 11),
    Sketcher.Constraint("Parallel", 9, 12),
    Sketcher.Constraint("Parallel", 11, 14),
    Sketcher.Constraint("Parallel", 12, 15),
    Sketcher.Constraint("Parallel", 14, 17),
    Sketcher.Constraint("Horizontal", 2, 2, 5, 2),
    Sketcher.Constraint("Horizontal", 1, 2, 6, 2),
    Sketcher.Constraint("Horizontal", 5, 2, 8, 2),
    Sketcher.Constraint("Horizontal", 4, 2, 9, 2),
    Sketcher.Constraint("Horizontal", 8, 2, 11, 2),
    Sketcher.Constraint("Horizontal", 14, 2, 17, 2),
    Sketcher.Constraint("Vertical", 1, 2, 3, 2),
    Sketcher.Constraint("Vertical", 0, 2, 4, 2),
    Sketcher.Constraint("Vertical", 4, 2, 12, 2),
    Sketcher.Constraint("Vertical", 3, 2, 13, 2),
    Sketcher.Constraint("Vertical", 2, 2, 14, 2),
    Sketcher.Constraint("Vertical", 13, 2, 15, 2),
    Sketcher.Constraint("Equal", 4, 7),
    Sketcher.Constraint("Angle", 0, Q("119.999996 deg")),
    Sketcher.Constraint("DistanceY", -1, 1, 2, 2, 68.0),
    Sketcher.Constraint("DistanceY", 14, 2, -1, 1, 37.0),
    Sketcher.Constraint("DistanceX", 0, 2, 6, 2, 126.0),
    Sketcher.Constraint("DistanceX", 1, 2, 1, 1, 3.25),
    Sketcher.Constraint("DistanceX", 2, 2, 5, 2, 6.5),
    Sketcher.Constraint("DistanceX", 2, 2, -1, 1, 77.25),
])
sketch8.setExpression("Constraints[51]", "Params.sketch8_width")
pocket4 = body.newObject("PartDesign::Pocket", "Pocket003")
pocket4.Profile = sketch8
pocket4.setExpression("Length", "Params.pocket4_length")
pocket4.Reversed = True

sketch9 = body.newObject("Sketcher::SketchObject", "Sketch008")
sketch9.AttachmentSupport = (doc.getObject("XY_Plane"), [""])
sketch9.MapMode = "FlatFace"
sketch9.addGeometry([
    Part.ArcOfCircle(Part.Circle(Vector(-65, 45, 0), Vector(0, 0, 1), 7.5), math.radians(0), math.radians(180)),
    Part.LineSegment(Vector(-72.5, 45, 0), Vector(-72.5, -10, 0)),
    Part.ArcOfCircle(Part.Circle(Vector(-65, -10, 0), Vector(0, 0, 1), 7.5), math.radians(180), math.radians(360)),
    Part.LineSegment(Vector(-57.5, -10, 0), Vector(-57.5, 45, 0)),
    Part.ArcOfCircle(Part.Circle(Vector(7, 65, 0), Vector(0, 0, 1), 1.5), math.radians(90), math.radians(270)),
    Part.LineSegment(Vector(7, 63.5, 0), Vector(37, 63.5, 0)),
    Part.ArcOfCircle(Part.Circle(Vector(37, 65, 0), Vector(0, 0, 1), 1.5), math.radians(-90), math.radians(90)),
    Part.LineSegment(Vector(37, 66.5, 0), Vector(7, 66.5, 0)),
    Part.ArcOfCircle(Part.Circle(Vector(-38, 65, 0), Vector(0, 0, 1), 1.5), math.radians(90), math.radians(270)),
    Part.LineSegment(Vector(-38, 63.5, 0), Vector(-8, 63.5, 0)),
    Part.ArcOfCircle(Part.Circle(Vector(-8, 65, 0), Vector(0, 0, 1), 1.5), math.radians(-90), math.radians(90)),
    Part.LineSegment(Vector(-8, 66.5, 0), Vector(-38, 66.5, 0)),
    Part.ArcOfCircle(Part.Circle(Vector(-38, 58, 0), Vector(0, 0, 1), 1.5), math.radians(90), math.radians(270)),
    Part.LineSegment(Vector(-38, 56.5, 0), Vector(-8, 56.5, 0)),
    Part.ArcOfCircle(Part.Circle(Vector(-8, 58, 0), Vector(0, 0, 1), 1.5), math.radians(-90), math.radians(90)),
    Part.LineSegment(Vector(-8, 59.5, 0), Vector(-38, 59.5, 0)),
    Part.ArcOfCircle(Part.Circle(Vector(7, 58, 0), Vector(0, 0, 1), 1.5), math.radians(90), math.radians(270)),
    Part.LineSegment(Vector(7, 56.5, 0), Vector(37, 56.5, 0)),
    Part.ArcOfCircle(Part.Circle(Vector(37, 58, 0), Vector(0, 0, 1), 1.5), math.radians(-90), math.radians(90)),
    Part.LineSegment(Vector(37, 59.5, 0), Vector(7, 59.5, 0)),
    Part.ArcOfCircle(Part.Circle(Vector(-38, 51, 0), Vector(0, 0, 1), 1.5), math.radians(90), math.radians(270)),
    Part.LineSegment(Vector(-38, 49.5, 0), Vector(-8, 49.5, 0)),
    Part.ArcOfCircle(Part.Circle(Vector(-8, 51, 0), Vector(0, 0, 1), 1.5), math.radians(-90), math.radians(90)),
    Part.LineSegment(Vector(-8, 52.5, 0), Vector(-38, 52.5, 0)),
    Part.ArcOfCircle(Part.Circle(Vector(7, 51, 0), Vector(0, 0, 1), 1.5), math.radians(90), math.radians(270)),
    Part.LineSegment(Vector(7, 49.5, 0), Vector(37, 49.5, 0)),
    Part.ArcOfCircle(Part.Circle(Vector(37, 51, 0), Vector(0, 0, 1), 1.5), math.radians(-90), math.radians(90)),
    Part.LineSegment(Vector(37, 52.5, 0), Vector(7, 52.5, 0)),
    Part.ArcOfCircle(Part.Circle(Vector(-38, 44, 0), Vector(0, 0, 1), 1.5), math.radians(90), math.radians(270)),
    Part.LineSegment(Vector(-38, 42.5, 0), Vector(-8, 42.5, 0)),
    Part.ArcOfCircle(Part.Circle(Vector(-8, 44, 0), Vector(0, 0, 1), 1.5), math.radians(-90), math.radians(90)),
    Part.LineSegment(Vector(-8, 45.5, 0), Vector(-38, 45.5, 0)),
    Part.ArcOfCircle(Part.Circle(Vector(7, 44, 0), Vector(0, 0, 1), 1.5), math.radians(90), math.radians(270)),
    Part.LineSegment(Vector(7, 42.5, 0), Vector(37, 42.5, 0)),
    Part.ArcOfCircle(Part.Circle(Vector(37, 44, 0), Vector(0, 0, 1), 1.5), math.radians(-90), math.radians(90)),
    Part.LineSegment(Vector(37, 45.5, 0), Vector(7, 45.5, 0)),
    Part.ArcOfCircle(Part.Circle(Vector(-38, 37, 0), Vector(0, 0, 1), 1.5), math.radians(90), math.radians(270)),
    Part.LineSegment(Vector(-38, 35.5, 0), Vector(-8, 35.5, 0)),
    Part.ArcOfCircle(Part.Circle(Vector(-8, 37, 0), Vector(0, 0, 1), 1.5), math.radians(-90), math.radians(90)),
    Part.LineSegment(Vector(-8, 38.5, 0), Vector(-38, 38.5, 0)),
    Part.ArcOfCircle(Part.Circle(Vector(7, 37, 0), Vector(0, 0, 1), 1.5), math.radians(90), math.radians(270)),
    Part.LineSegment(Vector(7, 35.5, 0), Vector(37, 35.5, 0)),
    Part.ArcOfCircle(Part.Circle(Vector(37, 37, 0), Vector(0, 0, 1), 1.5), math.radians(-90), math.radians(90)),
    Part.LineSegment(Vector(37, 38.5, 0), Vector(7, 38.5, 0)),
], False)
sketch9.addConstraint([
    Sketcher.Constraint("Tangent", 0, 2, 1, 1),
    Sketcher.Constraint("Tangent", 1, 2, 2, 1),
    Sketcher.Constraint("Tangent", 2, 2, 3, 1),
    Sketcher.Constraint("Tangent", 3, 2, 0, 1),
    Sketcher.Constraint("Tangent", 4, 2, 5, 1),
    Sketcher.Constraint("Tangent", 5, 2, 6, 1),
    Sketcher.Constraint("Tangent", 6, 2, 7, 1),
    Sketcher.Constraint("Tangent", 7, 2, 4, 1),
    Sketcher.Constraint("Tangent", 8, 2, 9, 1),
    Sketcher.Constraint("Tangent", 9, 2, 10, 1),
    Sketcher.Constraint("Tangent", 10, 2, 11, 1),
    Sketcher.Constraint("Tangent", 11, 2, 8, 1),
    Sketcher.Constraint("Tangent", 12, 2, 13, 1),
    Sketcher.Constraint("Tangent", 13, 2, 14, 1),
    Sketcher.Constraint("Tangent", 14, 2, 15, 1),
    Sketcher.Constraint("Tangent", 15, 2, 12, 1),
    Sketcher.Constraint("Tangent", 16, 2, 17, 1),
    Sketcher.Constraint("Tangent", 17, 2, 18, 1),
    Sketcher.Constraint("Tangent", 18, 2, 19, 1),
    Sketcher.Constraint("Tangent", 19, 2, 16, 1),
    Sketcher.Constraint("Tangent", 20, 2, 21, 1),
    Sketcher.Constraint("Tangent", 21, 2, 22, 1),
    Sketcher.Constraint("Tangent", 22, 2, 23, 1),
    Sketcher.Constraint("Tangent", 23, 2, 20, 1),
    Sketcher.Constraint("Tangent", 24, 2, 25, 1),
    Sketcher.Constraint("Tangent", 25, 2, 26, 1),
    Sketcher.Constraint("Tangent", 26, 2, 27, 1),
    Sketcher.Constraint("Tangent", 27, 2, 24, 1),
    Sketcher.Constraint("Tangent", 28, 2, 29, 1),
    Sketcher.Constraint("Tangent", 29, 2, 30, 1),
    Sketcher.Constraint("Tangent", 30, 2, 31, 1),
    Sketcher.Constraint("Tangent", 31, 2, 28, 1),
    Sketcher.Constraint("Tangent", 32, 2, 33, 1),
    Sketcher.Constraint("Tangent", 33, 2, 34, 1),
    Sketcher.Constraint("Tangent", 34, 2, 35, 1),
    Sketcher.Constraint("Tangent", 35, 2, 32, 1),
    Sketcher.Constraint("Tangent", 36, 2, 37, 1),
    Sketcher.Constraint("Tangent", 37, 2, 38, 1),
    Sketcher.Constraint("Tangent", 38, 2, 39, 1),
    Sketcher.Constraint("Tangent", 39, 2, 36, 1),
    Sketcher.Constraint("Tangent", 40, 2, 41, 1),
    Sketcher.Constraint("Tangent", 41, 2, 42, 1),
    Sketcher.Constraint("Tangent", 42, 2, 43, 1),
    Sketcher.Constraint("Tangent", 43, 2, 40, 1),
    Sketcher.Constraint("Vertical", 1),
    Sketcher.Constraint("Vertical", 3),
    Sketcher.Constraint("Horizontal", 5),
    Sketcher.Constraint("Horizontal", 7),
    Sketcher.Constraint("Horizontal", 9),
    Sketcher.Constraint("Horizontal", 11),
    Sketcher.Constraint("Horizontal", 13),
    Sketcher.Constraint("Horizontal", 15),
    Sketcher.Constraint("Horizontal", 17),
    Sketcher.Constraint("Horizontal", 19),
    Sketcher.Constraint("Horizontal", 21),
    Sketcher.Constraint("Horizontal", 23),
    Sketcher.Constraint("Horizontal", 25),
    Sketcher.Constraint("Horizontal", 27),
    Sketcher.Constraint("Horizontal", 29),
    Sketcher.Constraint("Horizontal", 31),
    Sketcher.Constraint("Horizontal", 33),
    Sketcher.Constraint("Horizontal", 35),
    Sketcher.Constraint("Horizontal", 37),
    Sketcher.Constraint("Horizontal", 39),
    Sketcher.Constraint("Horizontal", 41),
    Sketcher.Constraint("Horizontal", 43),
    Sketcher.Constraint("Equal", 6, 8),
    Sketcher.Constraint("Equal", 10, 12),
    Sketcher.Constraint("Equal", 14, 16),
    Sketcher.Constraint("Equal", 18, 20),
    Sketcher.Constraint("Equal", 22, 24),
    Sketcher.Constraint("Equal", 26, 28),
    Sketcher.Constraint("Equal", 30, 32),
    Sketcher.Constraint("Equal", 34, 36),
    Sketcher.Constraint("Equal", 38, 40),
    Sketcher.Constraint("Horizontal", 6, 3, 8, 3),
    Sketcher.Constraint("Horizontal", 14, 3, 16, 3),
    Sketcher.Constraint("Horizontal", 22, 3, 24, 3),
    Sketcher.Constraint("Horizontal", 30, 3, 32, 3),
    Sketcher.Constraint("Horizontal", 38, 3, 40, 3),
    Sketcher.Constraint("Vertical", 8, 3, 12, 3),
    Sketcher.Constraint("Vertical", 10, 3, 14, 3),
    Sketcher.Constraint("Vertical", 4, 3, 16, 3),
    Sketcher.Constraint("Vertical", 6, 3, 18, 3),
    Sketcher.Constraint("Vertical", 12, 3, 20, 3),
    Sketcher.Constraint("Vertical", 14, 3, 22, 3),
    Sketcher.Constraint("Vertical", 16, 3, 24, 3),
    Sketcher.Constraint("Vertical", 18, 3, 26, 3),
    Sketcher.Constraint("Vertical", 20, 3, 28, 3),
    Sketcher.Constraint("Vertical", 22, 3, 30, 3),
    Sketcher.Constraint("Vertical", 24, 3, 32, 3),
    Sketcher.Constraint("Vertical", 26, 3, 34, 3),
    Sketcher.Constraint("Vertical", 28, 3, 36, 3),
    Sketcher.Constraint("Vertical", 30, 3, 38, 3),
    Sketcher.Constraint("Vertical", 32, 3, 40, 3),
    Sketcher.Constraint("Vertical", 34, 3, 42, 3),
    Sketcher.Constraint("Equal", 7, 9),
    Sketcher.Constraint("Radius", 0, 7.5),
    Sketcher.Constraint("Radius", 4, 1.5),
    Sketcher.Constraint("DistanceX", 5, 1, 5, 2, 30.0),
    Sketcher.Constraint("DistanceY", 1, 2, 1, 1, 55.0),
    Sketcher.Constraint("DistanceX", 0, 3, -1, 1, 65.0),
    Sketcher.Constraint("DistanceY", -1, 1, 0, 3, 45.0),
    Sketcher.Constraint("DistanceX", -1, 1, 4, 3, 7.0),
    Sketcher.Constraint("DistanceY", -1, 1, 4, 3, 65.0),
    Sketcher.Constraint("DistanceX", 8, 3, -1, 1, 38.0),
    Sketcher.Constraint("DistanceY", -1, 1, 12, 3, 58.0),
    Sketcher.Constraint("DistanceY", -1, 1, 20, 3, 51.0),
    Sketcher.Constraint("DistanceY", -1, 1, 28, 3, 44.0),
    Sketcher.Constraint("DistanceY", -1, 1, 36, 3, 37.0),
])
sketch9.setExpression("Constraints[97]", "Params.sketch9_radius")
sketch9.setExpression("Constraints[98]", "Params.sketch9_radius2")
sketch9.setExpression("Constraints[99]", "Params.sketch9_width")
sketch9.setExpression("Constraints[100]", "Params.sketch9_height")
pocket5 = body.newObject("PartDesign::Pocket", "Pocket004")
pocket5.Profile = sketch9
pocket5.Type = "ThroughAll"
pocket5.Reversed = True

doc.recompute()
